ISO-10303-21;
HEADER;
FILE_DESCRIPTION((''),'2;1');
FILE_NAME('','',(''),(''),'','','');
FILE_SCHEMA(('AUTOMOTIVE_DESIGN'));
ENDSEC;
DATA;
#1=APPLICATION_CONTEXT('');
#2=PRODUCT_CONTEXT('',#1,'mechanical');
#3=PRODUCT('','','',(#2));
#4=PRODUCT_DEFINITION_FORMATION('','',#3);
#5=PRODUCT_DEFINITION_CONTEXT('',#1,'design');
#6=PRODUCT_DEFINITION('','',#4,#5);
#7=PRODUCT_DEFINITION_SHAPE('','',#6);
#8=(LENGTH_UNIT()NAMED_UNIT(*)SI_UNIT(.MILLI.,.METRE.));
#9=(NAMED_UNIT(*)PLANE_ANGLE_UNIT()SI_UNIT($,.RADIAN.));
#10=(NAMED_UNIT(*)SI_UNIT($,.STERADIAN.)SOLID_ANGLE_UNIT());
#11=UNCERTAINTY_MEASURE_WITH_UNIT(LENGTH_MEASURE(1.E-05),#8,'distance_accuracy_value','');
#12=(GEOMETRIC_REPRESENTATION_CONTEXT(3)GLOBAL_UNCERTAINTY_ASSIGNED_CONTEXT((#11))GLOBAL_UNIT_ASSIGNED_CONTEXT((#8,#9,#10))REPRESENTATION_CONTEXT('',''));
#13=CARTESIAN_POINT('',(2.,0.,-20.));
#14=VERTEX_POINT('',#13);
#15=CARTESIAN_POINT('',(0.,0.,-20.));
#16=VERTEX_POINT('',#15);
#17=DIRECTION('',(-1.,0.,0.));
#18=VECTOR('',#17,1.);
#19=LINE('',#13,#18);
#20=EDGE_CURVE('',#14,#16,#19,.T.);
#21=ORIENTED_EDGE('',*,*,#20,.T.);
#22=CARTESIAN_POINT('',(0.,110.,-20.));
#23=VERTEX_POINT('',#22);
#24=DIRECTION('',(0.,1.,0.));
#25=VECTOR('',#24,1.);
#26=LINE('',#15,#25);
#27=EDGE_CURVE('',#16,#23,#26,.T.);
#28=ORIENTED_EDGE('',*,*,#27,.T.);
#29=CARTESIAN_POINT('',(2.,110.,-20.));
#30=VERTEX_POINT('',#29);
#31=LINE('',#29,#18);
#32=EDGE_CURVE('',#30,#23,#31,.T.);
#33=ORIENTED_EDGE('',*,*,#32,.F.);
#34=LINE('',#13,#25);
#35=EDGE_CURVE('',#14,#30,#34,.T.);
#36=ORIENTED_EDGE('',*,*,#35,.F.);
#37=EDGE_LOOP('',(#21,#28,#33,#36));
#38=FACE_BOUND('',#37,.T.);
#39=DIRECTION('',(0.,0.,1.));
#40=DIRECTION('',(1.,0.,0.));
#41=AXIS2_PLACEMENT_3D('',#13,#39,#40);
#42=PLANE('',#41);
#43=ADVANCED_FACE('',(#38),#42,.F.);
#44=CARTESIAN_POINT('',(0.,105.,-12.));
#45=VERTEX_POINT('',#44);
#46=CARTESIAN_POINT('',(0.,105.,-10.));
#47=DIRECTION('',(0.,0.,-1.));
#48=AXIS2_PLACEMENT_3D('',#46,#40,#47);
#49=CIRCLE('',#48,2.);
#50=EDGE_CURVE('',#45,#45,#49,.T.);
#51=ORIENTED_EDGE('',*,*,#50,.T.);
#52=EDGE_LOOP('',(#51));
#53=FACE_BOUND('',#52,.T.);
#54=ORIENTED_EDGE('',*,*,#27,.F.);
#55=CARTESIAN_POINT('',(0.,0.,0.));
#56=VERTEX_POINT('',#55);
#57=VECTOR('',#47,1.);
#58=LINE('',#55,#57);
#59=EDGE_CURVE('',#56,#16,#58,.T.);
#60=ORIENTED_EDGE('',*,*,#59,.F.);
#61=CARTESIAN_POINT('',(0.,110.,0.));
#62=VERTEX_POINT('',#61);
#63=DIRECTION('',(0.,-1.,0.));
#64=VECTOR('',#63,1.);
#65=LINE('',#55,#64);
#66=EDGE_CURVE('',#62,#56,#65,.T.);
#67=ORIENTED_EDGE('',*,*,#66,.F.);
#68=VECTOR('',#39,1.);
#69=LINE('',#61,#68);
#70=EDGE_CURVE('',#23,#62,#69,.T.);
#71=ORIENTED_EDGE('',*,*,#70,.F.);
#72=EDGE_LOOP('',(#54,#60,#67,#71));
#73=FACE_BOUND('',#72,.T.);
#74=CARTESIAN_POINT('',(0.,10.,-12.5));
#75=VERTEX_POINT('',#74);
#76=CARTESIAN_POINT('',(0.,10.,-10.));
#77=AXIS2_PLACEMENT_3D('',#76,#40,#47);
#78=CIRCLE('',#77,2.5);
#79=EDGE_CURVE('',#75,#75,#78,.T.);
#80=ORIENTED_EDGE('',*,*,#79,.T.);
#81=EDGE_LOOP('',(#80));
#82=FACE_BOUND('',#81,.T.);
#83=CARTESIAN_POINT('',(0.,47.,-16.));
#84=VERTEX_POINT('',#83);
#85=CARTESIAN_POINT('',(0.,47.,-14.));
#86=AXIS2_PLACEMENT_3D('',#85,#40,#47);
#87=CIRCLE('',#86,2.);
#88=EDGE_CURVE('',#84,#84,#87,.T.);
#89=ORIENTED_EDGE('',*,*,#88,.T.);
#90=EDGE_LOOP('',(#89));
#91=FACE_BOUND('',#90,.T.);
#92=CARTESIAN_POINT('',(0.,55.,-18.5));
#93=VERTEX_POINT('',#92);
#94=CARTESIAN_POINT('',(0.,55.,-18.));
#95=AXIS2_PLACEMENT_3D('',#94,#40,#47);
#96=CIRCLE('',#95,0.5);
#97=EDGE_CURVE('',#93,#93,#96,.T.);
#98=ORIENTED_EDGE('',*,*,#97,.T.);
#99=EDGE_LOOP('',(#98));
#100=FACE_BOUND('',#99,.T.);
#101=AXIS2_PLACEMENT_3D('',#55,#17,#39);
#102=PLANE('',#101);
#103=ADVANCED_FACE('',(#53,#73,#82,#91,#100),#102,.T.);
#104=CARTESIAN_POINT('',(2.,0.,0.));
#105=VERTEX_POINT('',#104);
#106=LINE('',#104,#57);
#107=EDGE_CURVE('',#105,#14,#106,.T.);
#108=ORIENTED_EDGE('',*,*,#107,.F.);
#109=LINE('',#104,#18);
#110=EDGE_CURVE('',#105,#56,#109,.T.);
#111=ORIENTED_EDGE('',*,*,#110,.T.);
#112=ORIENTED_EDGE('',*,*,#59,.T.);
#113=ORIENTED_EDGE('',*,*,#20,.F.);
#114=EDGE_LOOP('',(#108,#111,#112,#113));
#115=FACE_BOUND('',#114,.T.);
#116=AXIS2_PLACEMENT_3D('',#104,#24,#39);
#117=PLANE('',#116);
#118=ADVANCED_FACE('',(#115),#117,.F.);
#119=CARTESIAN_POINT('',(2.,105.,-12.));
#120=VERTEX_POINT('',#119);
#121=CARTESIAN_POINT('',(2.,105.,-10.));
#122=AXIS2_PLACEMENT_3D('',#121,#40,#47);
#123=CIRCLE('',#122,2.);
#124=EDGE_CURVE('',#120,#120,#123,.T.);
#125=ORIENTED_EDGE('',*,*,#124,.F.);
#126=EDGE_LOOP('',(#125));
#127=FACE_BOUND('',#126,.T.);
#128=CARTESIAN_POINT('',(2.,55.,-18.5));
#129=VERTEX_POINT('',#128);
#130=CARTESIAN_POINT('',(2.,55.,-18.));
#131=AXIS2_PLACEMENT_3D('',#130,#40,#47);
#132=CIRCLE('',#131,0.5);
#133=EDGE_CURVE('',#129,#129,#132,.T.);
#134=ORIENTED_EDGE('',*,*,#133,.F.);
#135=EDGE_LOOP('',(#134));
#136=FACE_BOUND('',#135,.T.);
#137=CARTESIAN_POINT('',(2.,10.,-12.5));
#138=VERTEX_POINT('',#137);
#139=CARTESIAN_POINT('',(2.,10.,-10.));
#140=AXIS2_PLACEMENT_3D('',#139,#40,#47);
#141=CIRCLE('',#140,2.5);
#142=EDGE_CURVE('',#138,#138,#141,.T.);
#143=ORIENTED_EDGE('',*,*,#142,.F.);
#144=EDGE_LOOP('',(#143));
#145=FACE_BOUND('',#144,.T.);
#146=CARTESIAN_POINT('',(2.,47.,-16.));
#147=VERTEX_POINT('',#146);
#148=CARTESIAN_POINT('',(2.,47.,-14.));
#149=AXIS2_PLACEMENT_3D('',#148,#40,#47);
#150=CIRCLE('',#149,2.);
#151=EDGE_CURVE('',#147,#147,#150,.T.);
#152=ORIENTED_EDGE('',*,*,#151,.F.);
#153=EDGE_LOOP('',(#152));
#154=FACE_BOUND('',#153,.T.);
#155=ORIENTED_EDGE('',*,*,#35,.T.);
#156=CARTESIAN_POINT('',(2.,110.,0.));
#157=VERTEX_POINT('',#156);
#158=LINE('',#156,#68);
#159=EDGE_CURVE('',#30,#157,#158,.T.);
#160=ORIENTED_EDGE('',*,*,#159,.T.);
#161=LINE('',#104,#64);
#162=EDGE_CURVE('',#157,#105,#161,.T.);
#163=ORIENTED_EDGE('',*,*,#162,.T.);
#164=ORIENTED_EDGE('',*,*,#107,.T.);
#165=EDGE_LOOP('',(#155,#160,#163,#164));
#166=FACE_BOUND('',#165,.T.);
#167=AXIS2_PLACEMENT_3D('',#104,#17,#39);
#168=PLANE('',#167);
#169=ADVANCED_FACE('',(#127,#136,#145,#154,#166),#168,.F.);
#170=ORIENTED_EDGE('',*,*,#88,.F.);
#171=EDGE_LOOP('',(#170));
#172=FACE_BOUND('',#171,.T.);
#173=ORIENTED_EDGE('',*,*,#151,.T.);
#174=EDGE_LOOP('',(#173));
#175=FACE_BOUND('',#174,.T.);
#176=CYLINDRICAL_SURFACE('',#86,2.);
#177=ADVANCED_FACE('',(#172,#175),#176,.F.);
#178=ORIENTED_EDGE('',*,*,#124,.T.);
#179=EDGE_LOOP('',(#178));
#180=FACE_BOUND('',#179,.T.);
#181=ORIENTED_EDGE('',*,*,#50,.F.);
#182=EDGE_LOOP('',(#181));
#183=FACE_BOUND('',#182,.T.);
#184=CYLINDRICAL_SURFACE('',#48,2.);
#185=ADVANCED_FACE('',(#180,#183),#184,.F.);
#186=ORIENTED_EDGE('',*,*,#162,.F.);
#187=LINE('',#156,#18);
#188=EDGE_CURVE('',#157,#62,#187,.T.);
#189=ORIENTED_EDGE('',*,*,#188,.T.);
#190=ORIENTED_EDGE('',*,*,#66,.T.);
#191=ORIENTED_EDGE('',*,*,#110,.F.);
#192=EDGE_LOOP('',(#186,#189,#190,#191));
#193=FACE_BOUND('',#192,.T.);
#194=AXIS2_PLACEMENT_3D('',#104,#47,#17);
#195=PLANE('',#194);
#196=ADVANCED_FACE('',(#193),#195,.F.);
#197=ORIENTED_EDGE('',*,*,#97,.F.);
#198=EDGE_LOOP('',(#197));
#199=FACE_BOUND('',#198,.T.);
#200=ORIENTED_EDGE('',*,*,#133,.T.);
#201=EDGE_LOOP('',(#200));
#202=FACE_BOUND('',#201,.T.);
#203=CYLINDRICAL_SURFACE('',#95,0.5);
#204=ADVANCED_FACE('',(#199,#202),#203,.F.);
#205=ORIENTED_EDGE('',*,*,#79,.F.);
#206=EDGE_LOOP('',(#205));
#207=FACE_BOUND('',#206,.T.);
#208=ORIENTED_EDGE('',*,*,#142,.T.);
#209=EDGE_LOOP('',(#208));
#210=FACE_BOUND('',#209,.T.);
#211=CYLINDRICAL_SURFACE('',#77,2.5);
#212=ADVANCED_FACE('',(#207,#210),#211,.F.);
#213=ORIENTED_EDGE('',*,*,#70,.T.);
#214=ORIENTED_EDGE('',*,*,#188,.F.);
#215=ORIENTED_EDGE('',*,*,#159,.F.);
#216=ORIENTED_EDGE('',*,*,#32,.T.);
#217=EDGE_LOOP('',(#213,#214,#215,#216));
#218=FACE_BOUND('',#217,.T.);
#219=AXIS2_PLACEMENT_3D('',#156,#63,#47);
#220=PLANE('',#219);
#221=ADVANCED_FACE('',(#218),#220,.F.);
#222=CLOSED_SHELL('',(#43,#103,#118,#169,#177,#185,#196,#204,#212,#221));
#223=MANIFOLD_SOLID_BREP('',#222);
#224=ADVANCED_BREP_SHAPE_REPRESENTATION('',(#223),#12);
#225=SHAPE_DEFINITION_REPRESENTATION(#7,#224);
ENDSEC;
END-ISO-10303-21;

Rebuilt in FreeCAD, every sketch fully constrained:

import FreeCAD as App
import Part
import Sketcher
from FreeCAD import Vector


def add_polygon(sketch, points):
    """Adds a closed chain of lines whose ends are joined by coincident constraints."""
    first, n = sketch.GeometryCount, len(points)
    for a, b in zip(points, points[1:] + points[:1]):
        sketch.addGeometry(Part.LineSegment(App.Vector(*a, 0), App.Vector(*b, 0)), False)
    for i in range(n):
        sketch.addConstraint(Sketcher.Constraint("Coincident", first + i, 2, first + (i + 1) % n, 1))

doc = App.newDocument("Part")
body = doc.addObject("PartDesign::Body", "Body")

sketch1 = body.newObject("Sketcher::SketchObject", "Sketch")
sketch1.AttachmentSupport = (doc.getObject("YZ_Plane"), [""])
sketch1.MapMode = "FlatFace"
add_polygon(sketch1, [(110, 0), (0, 0), (0, -20), (110, -20)])
sketch1.addConstraint([
    Sketcher.Constraint("Horizontal", 0),
    Sketcher.Constraint("Vertical", 1),
    Sketcher.Constraint("Horizontal", 2),
    Sketcher.Constraint("Vertical", 3),
    Sketcher.Constraint("Coincident", 0, 2, -1, 1),
    Sketcher.Constraint("DistanceX", 0, 2, 0, 1, 110.0),
    Sketcher.Constraint("DistanceY", 1, 2, 1, 1, 20.0),
])
pad1 = body.newObject("PartDesign::Pad", "Pad")
pad1.Profile = sketch1
pad1.Length = 2

sketch2 = body.newObject("Sketcher::SketchObject", "Sketch001")
sketch2.AttachmentSupport = (doc.getObject("YZ_Plane"), [""])
sketch2.MapMode = "FlatFace"
sketch2.AttachmentOffset = App.Placement(Vector(0, 0, 2), App.Rotation())
sketch2.addGeometry([
    Part.Circle(Vector(10, -10, 0), Vector(0, 0, 1), 2.5),
    Part.Circle(Vector(105, -10, 0), Vector(0, 0, 1), 2),
    Part.Circle(Vector(47, -14, 0), Vector(0, 0, 1), 2),
    Part.Circle(Vector(55, -18, 0), Vector(0, 0, 1), 0.5),
], False)
sketch2.addConstraint([
    Sketcher.Constraint("Equal", 1, 2),
    Sketcher.Constraint("Horizontal", 0, 3, 1, 3),
    Sketcher.Constraint("Diameter", 0, 5.0),
    Sketcher.Constraint("Diameter", 1, 4.0),
    Sketcher.Constraint("Diameter", 3, 1.0),
    Sketcher.Constraint("DistanceX", -1, 1, 0, 3, 10.0),
    Sketcher.Constraint("DistanceY", 0, 3, -1, 1, 10.0),
    Sketcher.Constraint("DistanceX", -1, 1, 1, 3, 105.0),
    Sketcher.Constraint("DistanceX", -1, 1, 2, 3, 47.0),
    Sketcher.Constraint("DistanceY", 2, 3, -1, 1, 14.0),
    Sketcher.Constraint("DistanceX", -1, 1, 3, 3, 55.0),
    Sketcher.Constraint("DistanceY", 3, 3, -1, 1, 18.0),
])
pocket1 = body.newObject("PartDesign::Pocket", "Pocket")
pocket1.Profile = sketch2
pocket1.Length = 2

doc.recompute()
